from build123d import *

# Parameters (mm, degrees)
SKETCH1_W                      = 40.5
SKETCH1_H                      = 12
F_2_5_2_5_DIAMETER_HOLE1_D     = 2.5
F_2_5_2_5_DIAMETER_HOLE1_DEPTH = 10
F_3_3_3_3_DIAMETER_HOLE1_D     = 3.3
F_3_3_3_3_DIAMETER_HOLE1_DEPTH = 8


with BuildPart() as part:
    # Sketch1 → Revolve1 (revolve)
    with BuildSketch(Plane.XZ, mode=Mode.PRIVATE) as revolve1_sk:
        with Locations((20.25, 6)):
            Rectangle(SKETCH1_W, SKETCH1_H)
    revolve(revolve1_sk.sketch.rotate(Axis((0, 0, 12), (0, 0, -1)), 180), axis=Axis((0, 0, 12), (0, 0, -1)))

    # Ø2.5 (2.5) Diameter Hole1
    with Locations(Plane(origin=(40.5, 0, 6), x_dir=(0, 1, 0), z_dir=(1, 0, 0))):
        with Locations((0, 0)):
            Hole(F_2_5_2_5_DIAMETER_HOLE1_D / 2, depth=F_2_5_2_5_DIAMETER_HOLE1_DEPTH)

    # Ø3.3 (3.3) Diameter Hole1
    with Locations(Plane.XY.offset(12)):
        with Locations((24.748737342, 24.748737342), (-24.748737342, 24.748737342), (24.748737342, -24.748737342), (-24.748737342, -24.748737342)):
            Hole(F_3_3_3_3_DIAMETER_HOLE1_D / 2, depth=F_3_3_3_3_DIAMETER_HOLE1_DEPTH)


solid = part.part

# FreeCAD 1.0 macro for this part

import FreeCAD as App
import Part
import Sketcher
from FreeCAD import Vector
Q = App.Units.Quantity

doc = App.newDocument("Part")
body = doc.addObject("PartDesign::Body", "Body")

# Sketch on XZ plane
sketch1 = doc.addObject("Sketcher::SketchObject", "Sketch")
body.addObject(sketch1)
sketch1.AttachmentSupport = (doc.XZ_Plane, [""])
sketch1.MapMode = "FlatFace"
sketch1.addGeometry(Part.LineSegment(Vector(0, 12, 0), Vector(0, 0, 0)), False)
sketch1.addGeometry(Part.LineSegment(Vector(0, 0, 0), Vector(40, 0, 0)), False)
sketch1.addGeometry(Part.LineSegment(Vector(40, 0, 0), Vector(40, 12, 0)), False)
sketch1.addGeometry(Part.LineSegment(Vector(40, 12, 0), Vector(0, 12, 0)), False)
sketch1.addConstraint(Sketcher.Constraint("Coincident", 0, 2, 1, 1))
sketch1.addConstraint(Sketcher.Constraint("Coincident", 1, 2, 2, 1))
sketch1.addConstraint(Sketcher.Constraint("Coincident", 2, 2, 3, 1))
sketch1.addConstraint(Sketcher.Constraint("Coincident", 3, 2, 0, 1))
sketch1.addConstraint(Sketcher.Constraint("Vertical", 0))
sketch1.addConstraint(Sketcher.Constraint("Horizontal", 1))
sketch1.addConstraint(Sketcher.Constraint("Vertical", 2))
sketch1.addConstraint(Sketcher.Constraint("Horizontal", 3))
sketch1.addConstraint(Sketcher.Constraint("Coincident", 0, 2, -1, 1))
sketch1.addConstraint(Sketcher.Constraint("DistanceY", 0, 2, 0, 1, Q("12 mm")))
sketch1.addConstraint(Sketcher.Constraint("DistanceX", 1, 1, 1, 2, Q("40.5 mm")))
revolution = doc.addObject("PartDesign::Revolution", "Revolution")
body.addObject(revolution)
revolution.Profile = sketch1
revolution.ReferenceAxis = (sketch1, ["V_Axis"])
revolution.Angle = 360

# Sketch on YZ plane
sketch2 = doc.addObject("Sketcher::SketchObject", "Sketch001")
body.addObject(sketch2)
sketch2.AttachmentSupport = (doc.YZ_Plane, [""])
sketch2.MapMode = "FlatFace"
sketch2.AttachmentOffset = App.Placement(Vector(0, 0, 40.5), App.Rotation())
sketch2.addGeometry(Part.Circle(Vector(0, 6, 0), Vector(0, 0, 1), 1.2), False)
sketch2.addConstraint(Sketcher.Constraint("PointOnObject", 0, 3, -2))
sketch2.addConstraint(Sketcher.Constraint("Diameter", 0, Q("2.5 mm")))
sketch2.addConstraint(Sketcher.Constraint("DistanceY", -1, 1, 0, 3, Q("6 mm")))
doc.recompute()
hole = doc.addObject("PartDesign::Hole", "Hole")
body.addObject(hole)
hole.Profile = sketch2
hole.ThreadType = "None"
hole.Diameter = 2.5
hole.DepthType = "Dimension"
hole.Depth = 10
hole.DrillPoint = "Flat"

# Sketch on XY plane
sketch3 = doc.addObject("Sketcher::SketchObject", "Sketch002")
body.addObject(sketch3)
sketch3.AttachmentSupport = (doc.XY_Plane, [""])
sketch3.MapMode = "FlatFace"
sketch3.AttachmentOffset = App.Placement(Vector(0, 0, 12), App.Rotation())
sketch3.addGeometry(Part.Circle(Vector(24.7, 24.7, 0), Vector(0, 0, 1), 1.6), False)
sketch3.addGeometry(Part.Circle(Vector(-24.7, 24.7, 0), Vector(0, 0, 1), 1.6), False)
sketch3.addGeometry(Part.Circle(Vector(24.7, -24.7, 0), Vector(0, 0, 1), 1.6), False)
sketch3.addGeometry(Part.Circle(Vector(-24.7, -24.7, 0), Vector(0, 0, 1), 1.6), False)
sketch3.addConstraint(Sketcher.Constraint("Equal", 0, 1))
sketch3.addConstraint(Sketcher.Constraint("Equal", 1, 2))
sketch3.addConstraint(Sketcher.Constraint("Equal", 2, 3))
sketch3.addConstraint(Sketcher.Constraint("Symmetric", 1, 3, 2, 3, -1, 1))
sketch3.addConstraint(Sketcher.Constraint("Symmetric", 0, 3, 3, 3, -1, 1))
sketch3.addConstraint(Sketcher.Constraint("Symmetric", 0, 3, 1, 3, -2))
sketch3.addConstraint(Sketcher.Constraint("Diameter", 0, Q("3.3 mm")))
sketch3.addConstraint(Sketcher.Constraint("DistanceX", -1, 1, 0, 3, Q("24.748737 mm")))
sketch3.addConstraint(Sketcher.Constraint("DistanceY", -1, 1, 0, 3, Q("24.748737 mm")))
doc.recompute()
hole2 = doc.addObject("PartDesign::Hole", "Hole001")
body.addObject(hole2)
hole2.Profile = sketch3
hole2.ThreadType = "None"
hole2.Diameter = 3.3
hole2.DepthType = "Dimension"
hole2.Depth = 8
hole2.DrillPoint = "Flat"

doc.recompute()
